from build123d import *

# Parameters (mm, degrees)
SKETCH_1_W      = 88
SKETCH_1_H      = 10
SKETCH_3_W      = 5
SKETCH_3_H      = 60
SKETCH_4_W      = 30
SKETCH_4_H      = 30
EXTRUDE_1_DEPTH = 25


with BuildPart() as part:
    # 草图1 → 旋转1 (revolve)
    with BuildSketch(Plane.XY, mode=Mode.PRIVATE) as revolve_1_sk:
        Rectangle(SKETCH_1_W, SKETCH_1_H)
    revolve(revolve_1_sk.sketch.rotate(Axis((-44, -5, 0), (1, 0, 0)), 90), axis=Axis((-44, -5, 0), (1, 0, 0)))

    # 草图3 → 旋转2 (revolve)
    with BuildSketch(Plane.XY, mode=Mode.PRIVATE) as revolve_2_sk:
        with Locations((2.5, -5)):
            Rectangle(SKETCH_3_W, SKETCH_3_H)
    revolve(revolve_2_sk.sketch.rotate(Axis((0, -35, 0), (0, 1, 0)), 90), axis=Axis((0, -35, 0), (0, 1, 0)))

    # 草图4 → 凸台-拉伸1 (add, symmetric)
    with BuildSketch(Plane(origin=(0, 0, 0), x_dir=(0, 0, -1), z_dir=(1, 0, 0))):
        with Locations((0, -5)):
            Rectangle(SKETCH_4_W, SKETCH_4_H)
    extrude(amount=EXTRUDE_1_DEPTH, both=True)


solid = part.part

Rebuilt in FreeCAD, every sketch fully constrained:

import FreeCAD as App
import Part
import Sketcher

V = App.Vector

doc = App.newDocument("Part")
body = doc.addObject("PartDesign::Body", "Body")

# Sketch on XY plane
sketch1 = body.newObject("Sketcher::SketchObject", "Sketch")
sketch1.AttachmentSupport = (doc.getObject("XY_Plane"), [""])
sketch1.MapMode = "FlatFace"
sketch1.addGeometry(Part.LineSegment(V(-44, 5, 0), V(-44, -5, 0)), False)
sketch1.addGeometry(Part.LineSegment(V(-44, -5, 0), V(44, -5, 0)), False)
sketch1.addGeometry(Part.LineSegment(V(44, -5, 0), V(44, 5, 0)), False)
sketch1.addGeometry(Part.LineSegment(V(44, 5, 0), V(-44, 5, 0)), False)
sketch1.addGeometry(Part.LineSegment(V(-44, -5, 0), V(44, -5, 0)), True)  # axis
sketch1.addConstraint(Sketcher.Constraint("Coincident", 0, 2, 1, 1))
sketch1.addConstraint(Sketcher.Constraint("Coincident", 1, 2, 2, 1))
sketch1.addConstraint(Sketcher.Constraint("Coincident", 2, 2, 3, 1))
sketch1.addConstraint(Sketcher.Constraint("Coincident", 3, 2, 0, 1))
sketch1.addConstraint(Sketcher.Constraint("Vertical", 0))
sketch1.addConstraint(Sketcher.Constraint("Horizontal", 1))
sketch1.addConstraint(Sketcher.Constraint("Vertical", 2))
sketch1.addConstraint(Sketcher.Constraint("Horizontal", 3))
sketch1.addConstraint(Sketcher.Constraint("Horizontal", 4))
sketch1.addConstraint(Sketcher.Constraint("Coincident", 4, 1, 0, 2))
sketch1.addConstraint(Sketcher.Constraint("Symmetric", 0, 2, 2, 2, -1, 1))
sketch1.addConstraint(Sketcher.Constraint("Vertical", 2, 2, 4, 2))
sketch1.addConstraint(Sketcher.Constraint("DistanceX", 1, 1, 1, 2, 88.0))
sketch1.addConstraint(Sketcher.Constraint("DistanceY", 0, 2, 0, 1, 10.0))
revolution = body.newObject("PartDesign::Revolution", "Revolution")
revolution.Profile = sketch1
revolution.ReferenceAxis = (sketch1, ["Axis0"])
revolution.Angle = 360

# Sketch on XY plane
sketch2 = body.newObject("Sketcher::SketchObject", "Sketch001")
sketch2.AttachmentSupport = (doc.getObject("XY_Plane"), [""])
sketch2.MapMode = "FlatFace"
sketch2.addGeometry(Part.LineSegment(V(0, 25, 0), V(0, -35, 0)), False)
sketch2.addGeometry(Part.LineSegment(V(0, -35, 0), V(5, -35, 0)), False)
sketch2.addGeometry(Part.LineSegment(V(5, -35, 0), V(5, 25, 0)), False)
sketch2.addGeometry(Part.LineSegment(V(5, 25, 0), V(0, 25, 0)), False)
sketch2.addConstraint(Sketcher.Constraint("Coincident", 0, 2, 1, 1))
sketch2.addConstraint(Sketcher.Constraint("Coincident", 1, 2, 2, 1))
sketch2.addConstraint(Sketcher.Constraint("Coincident", 2, 2, 3, 1))
sketch2.addConstraint(Sketcher.Constraint("Coincident", 3, 2, 0, 1))
sketch2.addConstraint(Sketcher.Constraint("Vertical", 0))
sketch2.addConstraint(Sketcher.Constraint("Horizontal", 1))
sketch2.addConstraint(Sketcher.Constraint("Vertical", 2))
sketch2.addConstraint(Sketcher.Constraint("Horizontal", 3))
sketch2.addConstraint(Sketcher.Constraint("PointOnObject", 0, 2, -2))
sketch2.addConstraint(Sketcher.Constraint("DistanceX", 1, 1, 1, 2, 5.0))
sketch2.addConstraint(Sketcher.Constraint("DistanceY", 0, 2, 0, 1, 60.0))
sketch2.addConstraint(Sketcher.Constraint("DistanceY", 0, 2, -1, 1, 35.0))
revolution2 = body.newObject("PartDesign::Revolution", "Revolution001")
revolution2.Profile = sketch2
revolution2.ReferenceAxis = (sketch2, ["V_Axis"])
revolution2.Angle = 360

# Sketch on YZ plane
sketch3 = body.newObject("Sketcher::SketchObject", "Sketch002")
sketch3.AttachmentSupport = (doc.getObject("YZ_Plane"), [""])
sketch3.MapMode = "FlatFace"
sketch3.addGeometry(Part.LineSegment(V(10, 15, 0), V(-20, 15, 0)), False)
sketch3.addGeometry(Part.LineSegment(V(-20, 15, 0), V(-20, -15, 0)), False)
sketch3.addGeometry(Part.LineSegment(V(-20, -15, 0), V(10, -15, 0)), False)
sketch3.addGeometry(Part.LineSegment(V(10, -15, 0), V(10, 15, 0)), False)
sketch3.addConstraint(Sketcher.Constraint("Coincident", 0, 2, 1, 1))
sketch3.addConstraint(Sketcher.Constraint("Coincident", 1, 2, 2, 1))
sketch3.addConstraint(Sketcher.Constraint("Coincident", 2, 2, 3, 1))
sketch3.addConstraint(Sketcher.Constraint("Coincident", 3, 2, 0, 1))
sketch3.addConstraint(Sketcher.Constraint("Horizontal", 0))
sketch3.addConstraint(Sketcher.Constraint("Vertical", 1))
sketch3.addConstraint(Sketcher.Constraint("Horizontal", 2))
sketch3.addConstraint(Sketcher.Constraint("Vertical", 3))
sketch3.addConstraint(Sketcher.Constraint("Equal", 2, 1))
sketch3.addConstraint(Sketcher.Constraint("DistanceX", 0, 2, 0, 1, 30.0))
sketch3.addConstraint(Sketcher.Constraint("DistanceX", 0, 2, -1, 1, 20.0))
sketch3.addConstraint(Sketcher.Constraint("DistanceY", -1, 1, 0, 2, 15.0))
pad1 = body.newObject("PartDesign::Pad", "Pad")
pad1.Profile = sketch3
pad1.Length = 50
pad1.Midplane = True

doc.recompute()
